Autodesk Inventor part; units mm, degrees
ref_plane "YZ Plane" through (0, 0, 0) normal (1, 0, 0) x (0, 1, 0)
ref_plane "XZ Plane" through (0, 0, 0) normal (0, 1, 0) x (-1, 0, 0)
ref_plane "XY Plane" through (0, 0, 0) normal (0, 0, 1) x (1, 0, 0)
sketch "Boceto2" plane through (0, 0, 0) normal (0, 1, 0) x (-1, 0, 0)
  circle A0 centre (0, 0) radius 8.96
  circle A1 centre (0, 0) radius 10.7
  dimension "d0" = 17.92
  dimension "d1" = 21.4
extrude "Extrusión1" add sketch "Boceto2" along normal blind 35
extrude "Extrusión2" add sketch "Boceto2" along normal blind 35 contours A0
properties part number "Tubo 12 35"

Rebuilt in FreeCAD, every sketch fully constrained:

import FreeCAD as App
import Part
import Sketcher

doc = App.newDocument("Part")
params = doc.addObject("Spreadsheet::Sheet", "Params")
for row, (alias, value) in enumerate([
    ("sketch1_diameter", "21.4 mm"),
    ("sketch1_diameter2", "17.92 mm"),
    ("pad1_length", "35 mm"),
    ("sketch2_diameter", "17.92 mm"),
    ("pad2_length", "35 mm"),
], start=1):
    params.set(f"A{row}", alias)
    params.set(f"B{row}", "=" + value)
    params.setAlias(f"B{row}", alias)

body = doc.addObject("PartDesign::Body", "Body")

sketch1 = body.newObject("Sketcher::SketchObject", "Sketch")
sketch1.AttachmentSupport = (doc.getObject("XZ_Plane"), [""])
sketch1.MapMode = "FlatFace"
sketch1.addGeometry([
    Part.Circle(App.Vector(0, 0, 0), App.Vector(0, 0, 1), 11),
    Part.Circle(App.Vector(0, 0, 0), App.Vector(0, 0, 1), 9),
], False)
sketch1.addConstraint([
    Sketcher.Constraint("Coincident", 0, 3, -1, 1),
    Sketcher.Constraint("Coincident", 1, 3, -1, 1),
    Sketcher.Constraint("Diameter", 0, 21.4),
    Sketcher.Constraint("Diameter", 1, 17.92),
])
sketch1.setExpression("Constraints[2]", "Params.sketch1_diameter")
sketch1.setExpression("Constraints[3]", "Params.sketch1_diameter2")
pad1 = body.newObject("PartDesign::Pad", "Pad")
pad1.Profile = sketch1
pad1.setExpression("Length", "Params.pad1_length")
pad1.Reversed = True

sketch2 = body.newObject("Sketcher::SketchObject", "Sketch001")
sketch2.AttachmentSupport = (doc.getObject("XZ_Plane"), [""])
sketch2.MapMode = "FlatFace"
sketch2.addGeometry(Part.Circle(App.Vector(0, 0, 0), App.Vector(0, 0, 1), 9), False)
sketch2.addConstraint([
    Sketcher.Constraint("Coincident", 0, 3, -1, 1),
    Sketcher.Constraint("Diameter", 0, 17.92),
])
sketch2.setExpression("Constraints[1]", "Params.sketch2_diameter")
pad2 = body.newObject("PartDesign::Pad", "Pad001")
pad2.Profile = sketch2
pad2.setExpression("Length", "Params.pad2_length")
pad2.Reversed = True

doc.recompute()
